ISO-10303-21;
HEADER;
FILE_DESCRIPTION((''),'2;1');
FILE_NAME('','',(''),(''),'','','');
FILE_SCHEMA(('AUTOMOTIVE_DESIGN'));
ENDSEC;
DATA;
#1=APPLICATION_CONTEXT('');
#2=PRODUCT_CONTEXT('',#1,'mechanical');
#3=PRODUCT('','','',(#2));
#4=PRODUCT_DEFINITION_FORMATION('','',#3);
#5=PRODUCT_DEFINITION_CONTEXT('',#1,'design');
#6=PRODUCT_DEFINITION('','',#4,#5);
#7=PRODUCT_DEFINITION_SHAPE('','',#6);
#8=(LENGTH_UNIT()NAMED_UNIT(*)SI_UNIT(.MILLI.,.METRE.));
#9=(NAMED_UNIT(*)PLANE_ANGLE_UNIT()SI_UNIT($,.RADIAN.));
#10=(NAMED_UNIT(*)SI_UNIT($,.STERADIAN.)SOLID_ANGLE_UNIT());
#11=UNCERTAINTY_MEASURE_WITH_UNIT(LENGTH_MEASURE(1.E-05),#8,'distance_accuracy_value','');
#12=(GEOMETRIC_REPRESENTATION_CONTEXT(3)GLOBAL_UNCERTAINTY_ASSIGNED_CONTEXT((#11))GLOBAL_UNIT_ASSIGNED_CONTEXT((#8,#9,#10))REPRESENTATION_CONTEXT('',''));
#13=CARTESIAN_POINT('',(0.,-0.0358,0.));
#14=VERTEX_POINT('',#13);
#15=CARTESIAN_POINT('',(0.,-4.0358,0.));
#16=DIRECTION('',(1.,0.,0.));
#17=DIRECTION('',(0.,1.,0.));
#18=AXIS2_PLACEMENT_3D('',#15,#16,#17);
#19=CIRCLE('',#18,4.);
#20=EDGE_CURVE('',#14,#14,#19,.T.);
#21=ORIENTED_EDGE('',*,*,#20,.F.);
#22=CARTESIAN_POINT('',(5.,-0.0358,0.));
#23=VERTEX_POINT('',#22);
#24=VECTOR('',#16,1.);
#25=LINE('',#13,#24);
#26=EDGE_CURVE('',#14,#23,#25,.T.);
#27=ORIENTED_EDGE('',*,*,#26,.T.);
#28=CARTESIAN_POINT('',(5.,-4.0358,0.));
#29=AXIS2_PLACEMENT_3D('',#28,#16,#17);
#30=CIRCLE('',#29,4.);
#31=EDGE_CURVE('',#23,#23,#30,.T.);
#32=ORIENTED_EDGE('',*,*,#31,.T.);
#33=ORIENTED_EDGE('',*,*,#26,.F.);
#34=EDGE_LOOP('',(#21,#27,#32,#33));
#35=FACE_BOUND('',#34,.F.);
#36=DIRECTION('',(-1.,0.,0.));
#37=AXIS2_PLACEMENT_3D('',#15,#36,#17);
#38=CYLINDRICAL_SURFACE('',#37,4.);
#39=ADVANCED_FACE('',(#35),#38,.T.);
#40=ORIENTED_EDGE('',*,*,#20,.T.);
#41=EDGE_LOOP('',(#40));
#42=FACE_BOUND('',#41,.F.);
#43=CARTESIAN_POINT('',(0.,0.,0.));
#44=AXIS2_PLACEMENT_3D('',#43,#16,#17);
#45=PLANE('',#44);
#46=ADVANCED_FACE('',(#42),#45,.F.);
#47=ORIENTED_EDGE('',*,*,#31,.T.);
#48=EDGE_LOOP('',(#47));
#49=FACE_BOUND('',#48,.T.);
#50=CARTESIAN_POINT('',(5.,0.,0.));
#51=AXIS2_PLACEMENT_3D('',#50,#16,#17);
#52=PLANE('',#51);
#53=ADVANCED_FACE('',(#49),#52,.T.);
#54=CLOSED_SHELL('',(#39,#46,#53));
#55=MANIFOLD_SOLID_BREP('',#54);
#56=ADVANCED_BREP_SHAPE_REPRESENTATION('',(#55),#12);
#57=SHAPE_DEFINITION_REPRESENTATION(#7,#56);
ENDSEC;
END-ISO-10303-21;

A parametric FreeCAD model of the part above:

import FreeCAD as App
import Part
import Sketcher

V = App.Vector
Q = App.Units.Quantity

doc = App.newDocument("Part")
body = doc.addObject("PartDesign::Body", "Body")

sketch1 = body.newObject("Sketcher::SketchObject", "Sketch")
sketch1.AttachmentSupport = (doc.getObject("YZ_Plane"), [""])
sketch1.MapMode = "FlatFace"
sketch1.addGeometry(Part.Circle(V(-4, 0, 0), V(0, 0, 1), 4), False)
sketch1.addConstraint(Sketcher.Constraint("PointOnObject", 0, 3, -1))
sketch1.addConstraint(Sketcher.Constraint("Diameter", 0, Q("8 mm")))
sketch1.addConstraint(Sketcher.Constraint("DistanceX", 0, 3, -1, 1, Q("4.0358 mm")))
pad1 = body.newObject("PartDesign::Pad", "Pad")
pad1.Profile = sketch1
pad1.Length = 5

doc.recompute()
